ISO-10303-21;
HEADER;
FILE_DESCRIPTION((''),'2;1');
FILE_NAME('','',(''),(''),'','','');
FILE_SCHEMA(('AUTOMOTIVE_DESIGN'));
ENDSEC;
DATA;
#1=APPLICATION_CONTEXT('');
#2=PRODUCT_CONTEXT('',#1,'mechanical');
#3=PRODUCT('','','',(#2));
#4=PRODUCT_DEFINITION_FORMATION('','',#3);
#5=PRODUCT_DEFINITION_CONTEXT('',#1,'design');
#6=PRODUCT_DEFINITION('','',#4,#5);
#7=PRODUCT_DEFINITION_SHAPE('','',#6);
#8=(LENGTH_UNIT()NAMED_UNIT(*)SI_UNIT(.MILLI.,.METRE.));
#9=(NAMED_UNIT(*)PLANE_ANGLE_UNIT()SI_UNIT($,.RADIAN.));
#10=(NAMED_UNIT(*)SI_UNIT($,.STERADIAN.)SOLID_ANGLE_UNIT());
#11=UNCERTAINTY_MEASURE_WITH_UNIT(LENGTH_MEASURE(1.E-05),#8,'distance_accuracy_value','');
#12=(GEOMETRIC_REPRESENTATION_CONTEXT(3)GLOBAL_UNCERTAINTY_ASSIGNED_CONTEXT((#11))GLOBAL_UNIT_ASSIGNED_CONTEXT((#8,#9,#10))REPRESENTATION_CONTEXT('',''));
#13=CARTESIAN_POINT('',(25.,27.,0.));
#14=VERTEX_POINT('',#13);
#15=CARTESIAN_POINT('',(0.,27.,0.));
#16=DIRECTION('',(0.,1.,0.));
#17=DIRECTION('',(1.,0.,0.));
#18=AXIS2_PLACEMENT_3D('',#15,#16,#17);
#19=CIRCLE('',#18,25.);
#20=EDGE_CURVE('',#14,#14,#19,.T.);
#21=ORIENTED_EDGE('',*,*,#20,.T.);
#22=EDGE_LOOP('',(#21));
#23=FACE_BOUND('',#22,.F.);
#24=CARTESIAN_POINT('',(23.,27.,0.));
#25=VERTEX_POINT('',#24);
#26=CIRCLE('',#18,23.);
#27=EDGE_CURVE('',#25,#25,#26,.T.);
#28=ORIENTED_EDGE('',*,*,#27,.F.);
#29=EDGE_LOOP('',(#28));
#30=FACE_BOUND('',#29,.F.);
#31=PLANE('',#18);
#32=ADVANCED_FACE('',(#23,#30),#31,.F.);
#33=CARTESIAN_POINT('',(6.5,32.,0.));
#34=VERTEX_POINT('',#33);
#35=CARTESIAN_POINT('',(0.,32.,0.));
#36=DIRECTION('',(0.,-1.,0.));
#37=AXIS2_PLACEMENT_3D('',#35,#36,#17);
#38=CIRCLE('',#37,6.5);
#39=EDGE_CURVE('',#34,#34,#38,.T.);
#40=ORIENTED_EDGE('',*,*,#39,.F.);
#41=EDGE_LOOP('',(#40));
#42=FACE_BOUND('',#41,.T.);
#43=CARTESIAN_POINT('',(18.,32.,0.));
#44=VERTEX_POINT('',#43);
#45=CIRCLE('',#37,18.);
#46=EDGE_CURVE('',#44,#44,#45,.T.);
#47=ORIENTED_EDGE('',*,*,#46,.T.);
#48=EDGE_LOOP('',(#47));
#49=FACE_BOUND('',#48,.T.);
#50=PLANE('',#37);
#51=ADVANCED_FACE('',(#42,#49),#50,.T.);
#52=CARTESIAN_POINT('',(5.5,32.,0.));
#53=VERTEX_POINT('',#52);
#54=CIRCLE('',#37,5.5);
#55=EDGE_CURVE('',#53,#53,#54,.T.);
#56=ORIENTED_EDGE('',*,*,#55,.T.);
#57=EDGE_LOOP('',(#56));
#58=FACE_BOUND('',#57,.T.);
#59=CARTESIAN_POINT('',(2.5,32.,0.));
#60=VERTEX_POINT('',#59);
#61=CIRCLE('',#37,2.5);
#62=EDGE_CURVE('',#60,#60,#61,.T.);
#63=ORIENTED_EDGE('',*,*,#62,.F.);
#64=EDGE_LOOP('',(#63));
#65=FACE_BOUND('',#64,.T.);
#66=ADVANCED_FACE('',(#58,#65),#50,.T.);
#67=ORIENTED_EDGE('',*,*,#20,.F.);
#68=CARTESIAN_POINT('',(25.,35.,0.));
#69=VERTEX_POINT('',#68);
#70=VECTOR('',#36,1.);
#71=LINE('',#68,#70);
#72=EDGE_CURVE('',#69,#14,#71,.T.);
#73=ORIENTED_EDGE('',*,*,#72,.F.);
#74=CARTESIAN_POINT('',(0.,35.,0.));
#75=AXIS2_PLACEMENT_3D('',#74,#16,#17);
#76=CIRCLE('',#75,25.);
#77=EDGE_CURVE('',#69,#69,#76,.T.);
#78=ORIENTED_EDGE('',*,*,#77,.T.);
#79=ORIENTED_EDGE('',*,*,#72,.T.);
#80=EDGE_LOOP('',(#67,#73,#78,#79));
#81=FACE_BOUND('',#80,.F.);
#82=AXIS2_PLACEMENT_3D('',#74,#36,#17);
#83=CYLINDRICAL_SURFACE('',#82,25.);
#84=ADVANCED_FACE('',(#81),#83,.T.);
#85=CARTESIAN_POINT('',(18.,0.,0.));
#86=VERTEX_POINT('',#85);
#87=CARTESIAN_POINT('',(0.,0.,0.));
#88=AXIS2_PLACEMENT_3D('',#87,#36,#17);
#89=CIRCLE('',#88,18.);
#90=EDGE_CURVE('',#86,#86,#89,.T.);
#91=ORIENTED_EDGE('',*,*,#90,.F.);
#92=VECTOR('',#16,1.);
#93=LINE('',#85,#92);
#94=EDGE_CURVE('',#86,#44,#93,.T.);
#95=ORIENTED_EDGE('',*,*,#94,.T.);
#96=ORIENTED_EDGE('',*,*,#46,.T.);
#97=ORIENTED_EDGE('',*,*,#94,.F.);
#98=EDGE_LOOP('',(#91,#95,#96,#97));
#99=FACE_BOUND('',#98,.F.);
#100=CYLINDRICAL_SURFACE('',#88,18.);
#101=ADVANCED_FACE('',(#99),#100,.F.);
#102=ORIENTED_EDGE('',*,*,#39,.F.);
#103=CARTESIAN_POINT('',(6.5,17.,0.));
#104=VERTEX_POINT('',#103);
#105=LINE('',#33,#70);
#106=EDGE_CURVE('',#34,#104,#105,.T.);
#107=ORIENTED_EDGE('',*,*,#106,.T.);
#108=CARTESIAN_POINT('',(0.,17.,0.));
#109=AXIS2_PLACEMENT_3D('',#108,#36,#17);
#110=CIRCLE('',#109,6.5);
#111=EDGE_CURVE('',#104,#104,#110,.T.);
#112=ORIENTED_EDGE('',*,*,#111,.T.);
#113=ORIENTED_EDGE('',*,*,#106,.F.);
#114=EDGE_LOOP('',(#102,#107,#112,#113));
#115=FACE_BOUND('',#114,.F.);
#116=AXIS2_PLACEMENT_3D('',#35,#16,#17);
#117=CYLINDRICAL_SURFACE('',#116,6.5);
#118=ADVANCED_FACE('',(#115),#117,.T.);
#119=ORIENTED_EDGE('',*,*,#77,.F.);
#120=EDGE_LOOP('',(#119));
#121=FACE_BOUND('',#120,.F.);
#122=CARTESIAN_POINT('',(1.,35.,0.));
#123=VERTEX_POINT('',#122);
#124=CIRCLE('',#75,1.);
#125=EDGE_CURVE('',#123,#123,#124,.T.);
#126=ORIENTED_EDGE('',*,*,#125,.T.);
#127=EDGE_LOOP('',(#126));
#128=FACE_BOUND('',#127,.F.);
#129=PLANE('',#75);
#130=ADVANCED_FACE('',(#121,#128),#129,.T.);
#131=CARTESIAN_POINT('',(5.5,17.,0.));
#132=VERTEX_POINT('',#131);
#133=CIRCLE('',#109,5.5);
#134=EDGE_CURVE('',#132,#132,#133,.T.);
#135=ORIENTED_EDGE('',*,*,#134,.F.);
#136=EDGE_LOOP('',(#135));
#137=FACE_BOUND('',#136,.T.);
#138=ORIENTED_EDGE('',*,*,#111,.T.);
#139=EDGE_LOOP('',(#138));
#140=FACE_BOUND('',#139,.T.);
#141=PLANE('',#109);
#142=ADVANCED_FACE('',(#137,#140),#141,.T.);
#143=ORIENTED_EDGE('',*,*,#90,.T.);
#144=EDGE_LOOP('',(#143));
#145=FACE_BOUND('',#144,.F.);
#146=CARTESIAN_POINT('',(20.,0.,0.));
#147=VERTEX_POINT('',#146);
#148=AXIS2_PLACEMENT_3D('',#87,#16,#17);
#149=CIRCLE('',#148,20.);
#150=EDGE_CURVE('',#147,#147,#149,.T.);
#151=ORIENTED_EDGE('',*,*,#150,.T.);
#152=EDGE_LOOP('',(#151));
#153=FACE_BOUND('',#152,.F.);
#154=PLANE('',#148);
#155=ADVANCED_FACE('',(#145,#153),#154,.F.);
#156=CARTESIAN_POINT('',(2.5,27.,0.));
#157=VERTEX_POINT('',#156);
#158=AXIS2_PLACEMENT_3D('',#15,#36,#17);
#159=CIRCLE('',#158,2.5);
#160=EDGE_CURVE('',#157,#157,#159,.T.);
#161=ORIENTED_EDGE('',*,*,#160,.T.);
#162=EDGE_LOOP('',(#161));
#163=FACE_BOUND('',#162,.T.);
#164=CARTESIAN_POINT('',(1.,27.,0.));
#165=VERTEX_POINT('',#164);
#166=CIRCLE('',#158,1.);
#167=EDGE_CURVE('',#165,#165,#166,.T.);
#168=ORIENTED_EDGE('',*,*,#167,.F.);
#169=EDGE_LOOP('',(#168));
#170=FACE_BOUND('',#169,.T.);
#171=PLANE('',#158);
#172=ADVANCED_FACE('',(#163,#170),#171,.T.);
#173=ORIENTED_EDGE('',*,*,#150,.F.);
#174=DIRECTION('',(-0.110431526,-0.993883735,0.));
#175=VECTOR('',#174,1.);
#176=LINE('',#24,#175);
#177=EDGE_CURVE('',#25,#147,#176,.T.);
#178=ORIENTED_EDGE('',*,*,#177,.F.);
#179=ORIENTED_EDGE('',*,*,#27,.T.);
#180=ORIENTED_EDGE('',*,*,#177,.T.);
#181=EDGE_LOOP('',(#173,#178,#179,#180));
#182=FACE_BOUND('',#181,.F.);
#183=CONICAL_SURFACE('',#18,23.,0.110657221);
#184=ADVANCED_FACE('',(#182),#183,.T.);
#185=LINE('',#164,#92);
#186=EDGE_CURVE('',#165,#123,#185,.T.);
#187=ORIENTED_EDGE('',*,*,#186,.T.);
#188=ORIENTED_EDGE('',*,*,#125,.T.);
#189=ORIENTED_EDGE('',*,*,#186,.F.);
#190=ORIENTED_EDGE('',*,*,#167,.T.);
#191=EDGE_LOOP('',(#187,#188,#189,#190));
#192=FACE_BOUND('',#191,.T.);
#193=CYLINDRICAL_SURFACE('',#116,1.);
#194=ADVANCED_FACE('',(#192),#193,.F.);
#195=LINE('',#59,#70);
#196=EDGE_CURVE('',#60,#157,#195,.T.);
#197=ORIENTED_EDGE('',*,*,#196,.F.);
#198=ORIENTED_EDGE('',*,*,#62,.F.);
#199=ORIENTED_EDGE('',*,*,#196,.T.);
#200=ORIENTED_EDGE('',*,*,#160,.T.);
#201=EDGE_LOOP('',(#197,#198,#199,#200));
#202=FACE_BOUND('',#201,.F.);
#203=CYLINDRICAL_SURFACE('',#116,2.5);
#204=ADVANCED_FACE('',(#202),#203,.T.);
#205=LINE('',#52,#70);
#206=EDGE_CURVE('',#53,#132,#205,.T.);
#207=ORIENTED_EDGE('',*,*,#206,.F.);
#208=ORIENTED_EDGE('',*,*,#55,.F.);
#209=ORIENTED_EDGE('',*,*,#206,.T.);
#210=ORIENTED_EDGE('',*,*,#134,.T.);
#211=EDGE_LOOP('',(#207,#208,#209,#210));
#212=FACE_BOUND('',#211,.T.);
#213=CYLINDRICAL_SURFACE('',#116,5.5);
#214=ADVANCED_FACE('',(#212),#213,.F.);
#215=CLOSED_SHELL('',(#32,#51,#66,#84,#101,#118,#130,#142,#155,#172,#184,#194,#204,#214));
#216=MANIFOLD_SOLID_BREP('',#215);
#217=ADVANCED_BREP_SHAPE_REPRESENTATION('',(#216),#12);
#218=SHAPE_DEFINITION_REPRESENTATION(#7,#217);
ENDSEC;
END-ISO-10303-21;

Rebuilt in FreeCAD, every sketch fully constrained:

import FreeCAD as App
import Part
import Sketcher

V = App.Vector

doc = App.newDocument("Part")
body = doc.addObject("PartDesign::Body", "Body")

sketch1 = doc.addObject("Sketcher::SketchObject", "Sketch")
body.addObject(sketch1)
sketch1.AttachmentSupport = (doc.XY_Plane, [""])
sketch1.MapMode = "FlatFace"
sketch1.addGeometry([
    Part.LineSegment(V(0, 35, 0), V(0, 0, 0)),
    Part.LineSegment(V(0, 0, 0), V(20, 0, 0)),
    Part.LineSegment(V(20, 0, 0), V(23, 27, 0)),
    Part.LineSegment(V(23, 27, 0), V(25, 27, 0)),
    Part.LineSegment(V(25, 27, 0), V(25, 35, 0)),
    Part.LineSegment(V(25, 35, 0), V(0, 35, 0)),
], False)
sketch1.addConstraint([
    Sketcher.Constraint("Coincident", 0, 2, 1, 1),
    Sketcher.Constraint("Coincident", 1, 2, 2, 1),
    Sketcher.Constraint("Coincident", 2, 2, 3, 1),
    Sketcher.Constraint("Coincident", 3, 2, 4, 1),
    Sketcher.Constraint("Coincident", 4, 2, 5, 1),
    Sketcher.Constraint("Coincident", 5, 2, 0, 1),
    Sketcher.Constraint("Vertical", 0),
    Sketcher.Constraint("Horizontal", 1),
    Sketcher.Constraint("Horizontal", 3),
    Sketcher.Constraint("Vertical", 4),
    Sketcher.Constraint("Horizontal", 5),
    Sketcher.Constraint("Coincident", 0, 2, -1, 1),
    Sketcher.Constraint("DistanceX", 1, 1, 1, 2, 20.0),
    Sketcher.Constraint("DistanceX", 3, 1, 3, 2, 2.0),
    Sketcher.Constraint("DistanceX", 5, 2, 5, 1, 25.0),
    Sketcher.Constraint("DistanceY", 0, 2, 0, 1, 35.0),
    Sketcher.Constraint("DistanceY", 4, 1, 4, 2, 8.0),
])
revolution = doc.addObject("PartDesign::Revolution", "Revolution")
body.addObject(revolution)
revolution.Profile = sketch1
revolution.ReferenceAxis = (sketch1, ["V_Axis"])
revolution.Angle = 360

sketch2 = doc.addObject("Sketcher::SketchObject", "Sketch001")
body.addObject(sketch2)
sketch2.AttachmentSupport = (doc.XZ_Plane, [""])
sketch2.MapMode = "FlatFace"
sketch2.AttachmentOffset = App.Placement(V(0, 0, -35), App.Rotation())
sketch2.addGeometry(Part.Circle(V(0, 0, 0), V(0, 0, 1), 1), False)
sketch2.addConstraint([
    Sketcher.Constraint("Coincident", 0, 3, -1, 1),
    Sketcher.Constraint("Diameter", 0, 2.0),
])
pocket1 = doc.addObject("PartDesign::Pocket", "Pocket")
body.addObject(pocket1)
pocket1.Profile = sketch2
pocket1.Type = "ThroughAll"
pocket1.Reversed = True

sketch3 = doc.addObject("Sketcher::SketchObject", "Sketch002")
body.addObject(sketch3)
sketch3.AttachmentSupport = (doc.XZ_Plane, [""])
sketch3.MapMode = "FlatFace"
sketch3.addGeometry([
    Part.Circle(V(0, 0, 0), V(0, 0, 1), 18),
    Part.Circle(V(0, 0, 0), V(0, 0, 1), 1),
], False)
sketch3.addConstraint([
    Sketcher.Constraint("Coincident", 0, 3, -1, 1),
    Sketcher.Constraint("Coincident", 1, 3, -1, 1),
    Sketcher.Constraint("Diameter", 0, 36.0),
    Sketcher.Constraint("Diameter", 1, 2.0),
])
pocket2 = doc.addObject("PartDesign::Pocket", "Pocket001")
body.addObject(pocket2)
pocket2.Profile = sketch3
pocket2.Length = 32

sketch4 = doc.addObject("Sketcher::SketchObject", "Sketch003")
body.addObject(sketch4)
sketch4.AttachmentSupport = (doc.XZ_Plane, [""])
sketch4.MapMode = "FlatFace"
sketch4.AttachmentOffset = App.Placement(V(0, 0, -32), App.Rotation())
sketch4.addGeometry([
    Part.Circle(V(0, 0, 0), V(0, 0, 1), 2.5),
    Part.Circle(V(0, 0, 0), V(0, 0, 1), 1),
], False)
sketch4.addConstraint([
    Sketcher.Constraint("Coincident", 0, 3, -1, 1),
    Sketcher.Constraint("Coincident", 1, 3, -1, 1),
    Sketcher.Constraint("Diameter", 0, 5.0),
    Sketcher.Constraint("Diameter", 1, 2.0),
])
pad1 = doc.addObject("PartDesign::Pad", "Pad")
body.addObject(pad1)
pad1.Profile = sketch4
pad1.Length = 5

sketch5 = doc.addObject("Sketcher::SketchObject", "Sketch004")
body.addObject(sketch5)
sketch5.AttachmentSupport = (doc.XZ_Plane, [""])
sketch5.MapMode = "FlatFace"
sketch5.AttachmentOffset = App.Placement(V(0, 0, -32), App.Rotation())
sketch5.addGeometry([
    Part.Circle(V(0, 0, 0), V(0, 0, 1), 6),
    Part.Circle(V(0, 0, 0), V(0, 0, 1), 6),
], False)
sketch5.addConstraint([
    Sketcher.Constraint("Coincident", 0, 3, -1, 1),
    Sketcher.Constraint("Coincident", 1, 3, -1, 1),
    Sketcher.Constraint("Diameter", 1, 11.0),
    Sketcher.Constraint("Diameter", 0, 13.0),
])
pad2 = doc.addObject("PartDesign::Pad", "Pad001")
body.addObject(pad2)
pad2.Profile = sketch5
pad2.Length = 15

doc.recompute()
